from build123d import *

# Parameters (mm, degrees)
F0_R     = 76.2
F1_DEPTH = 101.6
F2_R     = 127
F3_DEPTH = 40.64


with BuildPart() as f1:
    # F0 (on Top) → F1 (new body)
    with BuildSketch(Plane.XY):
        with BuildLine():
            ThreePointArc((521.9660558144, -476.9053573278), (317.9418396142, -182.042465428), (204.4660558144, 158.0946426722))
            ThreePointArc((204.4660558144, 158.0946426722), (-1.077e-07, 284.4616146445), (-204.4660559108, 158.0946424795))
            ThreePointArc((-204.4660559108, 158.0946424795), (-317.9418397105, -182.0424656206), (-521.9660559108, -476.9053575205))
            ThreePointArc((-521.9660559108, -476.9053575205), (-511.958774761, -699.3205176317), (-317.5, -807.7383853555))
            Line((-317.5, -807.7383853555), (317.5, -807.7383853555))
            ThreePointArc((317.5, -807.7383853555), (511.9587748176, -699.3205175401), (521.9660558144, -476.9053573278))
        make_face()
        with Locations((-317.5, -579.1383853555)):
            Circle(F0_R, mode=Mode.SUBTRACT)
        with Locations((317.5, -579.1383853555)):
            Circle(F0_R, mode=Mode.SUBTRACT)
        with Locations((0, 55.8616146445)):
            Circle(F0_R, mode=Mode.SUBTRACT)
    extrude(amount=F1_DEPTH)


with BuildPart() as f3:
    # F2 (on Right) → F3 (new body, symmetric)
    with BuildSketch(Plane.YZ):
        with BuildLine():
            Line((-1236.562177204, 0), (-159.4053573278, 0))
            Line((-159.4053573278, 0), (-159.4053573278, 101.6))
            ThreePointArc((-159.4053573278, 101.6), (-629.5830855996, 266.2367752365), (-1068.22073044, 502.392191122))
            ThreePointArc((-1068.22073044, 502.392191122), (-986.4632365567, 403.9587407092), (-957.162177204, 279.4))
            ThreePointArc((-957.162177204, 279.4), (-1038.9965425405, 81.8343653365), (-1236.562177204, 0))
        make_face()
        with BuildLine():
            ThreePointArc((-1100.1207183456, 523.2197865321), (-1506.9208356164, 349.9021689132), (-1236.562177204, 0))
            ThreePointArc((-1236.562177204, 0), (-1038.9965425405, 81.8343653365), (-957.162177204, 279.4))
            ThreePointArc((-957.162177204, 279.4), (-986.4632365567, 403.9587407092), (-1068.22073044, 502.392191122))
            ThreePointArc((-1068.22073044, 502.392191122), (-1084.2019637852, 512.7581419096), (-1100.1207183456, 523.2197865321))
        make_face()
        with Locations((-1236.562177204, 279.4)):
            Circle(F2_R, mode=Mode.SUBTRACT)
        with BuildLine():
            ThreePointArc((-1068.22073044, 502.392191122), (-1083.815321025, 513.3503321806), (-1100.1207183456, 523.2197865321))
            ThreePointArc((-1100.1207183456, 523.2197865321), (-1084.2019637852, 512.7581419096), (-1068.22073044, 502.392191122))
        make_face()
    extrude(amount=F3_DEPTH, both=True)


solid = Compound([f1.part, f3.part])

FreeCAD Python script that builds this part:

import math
import FreeCAD as App
import Part
import Sketcher
Q = App.Units.Quantity

doc = App.newDocument("Part")
body = doc.addObject("PartDesign::Body", "Body")

sketch1 = doc.addObject("Sketcher::SketchObject", "Sketch")
body.addObject(sketch1)
sketch1.AttachmentSupport = (doc.XY_Plane, [""])
sketch1.MapMode = "FlatFace"
sketch1.addGeometry([
    Part.ArcOfCircle(Part.Circle(App.Vector(1454, 386, 0), App.Vector(0, 0, 1), 1270), math.radians(-170), math.radians(-137)),
    Part.ArcOfCircle(Part.Circle(App.Vector(0, 56, 0), App.Vector(0, 0, 1), 229), math.radians(27), math.radians(153)),
    Part.ArcOfCircle(Part.Circle(App.Vector(-1454, 386, 0), App.Vector(0, 0, 1), 1270), math.radians(-43), math.radians(-10)),
    Part.ArcOfCircle(Part.Circle(App.Vector(-318, -579, 0), App.Vector(0, 0, 1), 229), math.radians(153), math.radians(270)),
    Part.LineSegment(App.Vector(-318, -808, 0), App.Vector(318, -808, 0)),
    Part.ArcOfCircle(Part.Circle(App.Vector(318, -579, 0), App.Vector(0, 0, 1), 229), math.radians(-90), math.radians(27)),
    Part.Circle(App.Vector(-318, -579, 0), App.Vector(0, 0, 1), 76),
    Part.Circle(App.Vector(318, -579, 0), App.Vector(0, 0, 1), 76),
    Part.Circle(App.Vector(0, 56, 0), App.Vector(0, 0, 1), 76),
], False)
sketch1.addConstraint([
    Sketcher.Constraint("Coincident", 0, 1, 1, 1),
    Sketcher.Constraint("Coincident", 1, 2, 2, 2),
    Sketcher.Constraint("Coincident", 2, 1, 3, 1),
    Sketcher.Constraint("Tangent", 3, 2, 4, 1),
    Sketcher.Constraint("Tangent", 4, 2, 5, 1),
    Sketcher.Constraint("Coincident", 5, 2, 0, 2),
    Sketcher.Constraint("Horizontal", 4),
    Sketcher.Constraint("Coincident", 6, 3, 3, 3),
    Sketcher.Constraint("Coincident", 7, 3, 5, 3),
    Sketcher.Constraint("Coincident", 8, 3, 1, 3),
    Sketcher.Constraint("Equal", 0, 2),
    Sketcher.Constraint("Equal", 1, 3),
    Sketcher.Constraint("Equal", 3, 5),
    Sketcher.Constraint("Equal", 6, 7),
    Sketcher.Constraint("Equal", 7, 8),
    Sketcher.Constraint("Symmetric", 0, 3, 2, 3, -2),
    Sketcher.Constraint("PointOnObject", 1, 3, -2),
    Sketcher.Constraint("Horizontal", 2, 1, 5, 2),
    Sketcher.Constraint("Diameter", 6, Q("6 in")),
    Sketcher.Constraint("Radius", 0, Q("50 in")),
    Sketcher.Constraint("Radius", 1, Q("9 in")),
    Sketcher.Constraint("DistanceX", 4, 1, 4, 2, Q("25 in")),
    Sketcher.Constraint("DistanceY", 3, 3, 1, 3, Q("25 in")),
    Sketcher.Constraint("DistanceY", 2, 1, 1, 2, Q("25 in")),
    Sketcher.Constraint("DistanceY", -1, 1, 0, 3, Q("385.918801 mm")),
    Sketcher.Constraint("DistanceX", -1, 1, 0, 3, Q("1453.864372 mm")),
])
pad1 = doc.addObject("PartDesign::Pad", "Pad")
body.addObject(pad1)
pad1.Profile = sketch1
pad1.Length = Q("4 in")
body2 = doc.addObject("PartDesign::Body", "Body001")

sketch2 = doc.addObject("Sketcher::SketchObject", "Sketch001")
body2.addObject(sketch2)
sketch2.AttachmentSupport = (doc.getObject("YZ_Plane001"), [""])
sketch2.MapMode = "FlatFace"
sketch2.addGeometry([
    Part.LineSegment(App.Vector(-1237, 0, 0), App.Vector(-159, 0, 0)),
    Part.LineSegment(App.Vector(-159, 0, 0), App.Vector(-159, 102, 0)),
    Part.ArcOfCircle(Part.Circle(App.Vector(652, 3171, 0), App.Vector(0, 0, 1), 3175), math.radians(-122.8), math.radians(-104.8)),
    Part.ArcOfCircle(Part.Circle(App.Vector(-1237, 279, 0), App.Vector(0, 0, 1), 279), math.radians(52.95), math.radians(60.77)),
    Part.ArcOfCircle(Part.Circle(App.Vector(-1237, 279, 0), App.Vector(0, 0, 1), 279), math.radians(61), math.radians(270)),
    Part.Circle(App.Vector(-1237, 279, 0), App.Vector(0, 0, 1), 127),
], False)
sketch2.addConstraint([
    Sketcher.Constraint("Coincident", 0, 2, 1, 1),
    Sketcher.Constraint("Coincident", 1, 2, 2, 2),
    Sketcher.Constraint("Coincident", 2, 1, 3, 1),
    Sketcher.Constraint("Tangent", 3, 2, 4, 1),
    Sketcher.Constraint("Tangent", 4, 2, 0, 1),
    Sketcher.Constraint("Horizontal", 0),
    Sketcher.Constraint("Vertical", 1),
    Sketcher.Constraint("Coincident", 5, 3, 3, 3),
    Sketcher.Constraint("Equal", 3, 4),
    Sketcher.Constraint("PointOnObject", 0, 2, -1),
    Sketcher.Constraint("Diameter", 5, Q("10 in")),
    Sketcher.Constraint("Radius", 2, Q("125 in")),
    Sketcher.Constraint("Radius", 3, Q("11 in")),
    Sketcher.Constraint("DistanceY", 1, 1, 1, 2, Q("4 in")),
    Sketcher.Constraint("DistanceX", 0, 1, 0, 2, Q("1077.15682 mm")),
    Sketcher.Constraint("DistanceX", 3, 2, -1, 1, Q("1100.120718 mm")),
    Sketcher.Constraint("DistanceX", -1, 1, 2, 3, Q("651.557766 mm")),
    Sketcher.Constraint("DistanceY", -1, 1, 2, 3, Q("3171.284644 mm")),
])
pad2 = doc.addObject("PartDesign::Pad", "Pad001")
body2.addObject(pad2)
pad2.Profile = sketch2
pad2.Length = Q("3.2 in")
pad2.Midplane = True

doc.recompute()
